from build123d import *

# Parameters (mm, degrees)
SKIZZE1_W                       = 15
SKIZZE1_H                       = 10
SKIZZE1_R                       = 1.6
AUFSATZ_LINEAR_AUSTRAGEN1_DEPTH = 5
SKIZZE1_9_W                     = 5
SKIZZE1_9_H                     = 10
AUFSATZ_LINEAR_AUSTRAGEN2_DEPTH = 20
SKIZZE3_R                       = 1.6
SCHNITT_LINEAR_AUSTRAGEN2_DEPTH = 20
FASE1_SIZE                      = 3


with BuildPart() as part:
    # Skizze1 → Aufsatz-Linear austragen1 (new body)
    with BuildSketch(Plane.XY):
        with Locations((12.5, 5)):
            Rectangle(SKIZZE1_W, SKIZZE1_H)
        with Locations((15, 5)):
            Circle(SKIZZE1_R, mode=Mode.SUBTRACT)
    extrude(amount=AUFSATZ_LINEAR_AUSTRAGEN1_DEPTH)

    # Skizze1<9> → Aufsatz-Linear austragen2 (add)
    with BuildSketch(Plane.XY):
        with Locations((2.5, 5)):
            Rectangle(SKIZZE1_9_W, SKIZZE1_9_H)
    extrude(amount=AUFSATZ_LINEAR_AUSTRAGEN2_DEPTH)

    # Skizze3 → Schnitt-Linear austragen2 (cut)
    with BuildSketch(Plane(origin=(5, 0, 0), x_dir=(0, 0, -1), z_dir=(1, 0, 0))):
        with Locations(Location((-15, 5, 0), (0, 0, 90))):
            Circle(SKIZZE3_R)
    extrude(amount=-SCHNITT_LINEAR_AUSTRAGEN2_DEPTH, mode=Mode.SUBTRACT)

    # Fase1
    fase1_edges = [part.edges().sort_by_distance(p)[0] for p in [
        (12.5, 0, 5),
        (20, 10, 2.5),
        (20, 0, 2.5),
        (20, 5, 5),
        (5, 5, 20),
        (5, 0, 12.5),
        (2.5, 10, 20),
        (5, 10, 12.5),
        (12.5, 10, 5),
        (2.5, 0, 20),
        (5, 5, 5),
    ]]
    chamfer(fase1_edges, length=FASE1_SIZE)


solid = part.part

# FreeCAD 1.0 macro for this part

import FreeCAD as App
import Part
import Sketcher

V = App.Vector
Q = App.Units.Quantity


def edges_at(feature, points):
    """Names of the edges that pass closest to the given points."""
    edges = feature.Shape.Edges
    near = lambda p: min(range(len(edges)), key=lambda i: edges[i].distToShape(Part.Vertex(*p))[0])
    return sorted({f"Edge{near(p) + 1}" for p in points})


def add_polygon(sketch, points):
    """Adds a closed chain of lines whose ends are joined by coincident constraints."""
    first, n = sketch.GeometryCount, len(points)
    for a, b in zip(points, points[1:] + points[:1]):
        sketch.addGeometry(Part.LineSegment(App.Vector(*a, 0), App.Vector(*b, 0)), False)
    for i in range(n):
        sketch.addConstraint(Sketcher.Constraint("Coincident", first + i, 2, first + (i + 1) % n, 1))

doc = App.newDocument("Part")
body = doc.addObject("PartDesign::Body", "Body")

# Sketch on XY plane
sketch1 = body.newObject("Sketcher::SketchObject", "Sketch")
sketch1.AttachmentSupport = (doc.getObject("XY_Plane"), [""])
sketch1.MapMode = "FlatFace"
add_polygon(sketch1, [(5, 10), (5, 0), (20, 0), (20, 10)])  # lines 0-3
sketch1.addGeometry(Part.Circle(V(15, 5, 0), V(0, 0, 1), 1.6), False)  # 4
sketch1.addConstraint([
    Sketcher.Constraint("Vertical", 0),
    Sketcher.Constraint("Horizontal", 1),
    Sketcher.Constraint("Vertical", 2),
    Sketcher.Constraint("Horizontal", 3),
    Sketcher.Constraint("PointOnObject", 0, 2, -1),
    Sketcher.Constraint("Diameter", 4, Q("3.2 mm")),
    Sketcher.Constraint("DistanceX", 1, 1, 1, 2, Q("15 mm")),
    Sketcher.Constraint("DistanceY", 0, 2, 0, 1, Q("10 mm")),
    Sketcher.Constraint("DistanceX", -1, 1, 4, 3, Q("15 mm")),
    Sketcher.Constraint("DistanceY", -1, 1, 4, 3, Q("5 mm")),
    Sketcher.Constraint("DistanceX", -1, 1, 0, 2, Q("5 mm")),
])
pad1 = body.newObject("PartDesign::Pad", "Pad")
pad1.Profile = sketch1
pad1.Length = 5

# Sketch on XY plane
sketch2 = body.newObject("Sketcher::SketchObject", "Sketch001")
sketch2.AttachmentSupport = (doc.getObject("XY_Plane"), [""])
sketch2.MapMode = "FlatFace"
add_polygon(sketch2, [(0, 10), (0, 0), (5, 0), (5, 10)])  # lines 0-3
sketch2.addConstraint([
    Sketcher.Constraint("Vertical", 0),
    Sketcher.Constraint("Horizontal", 1),
    Sketcher.Constraint("Vertical", 2),
    Sketcher.Constraint("Horizontal", 3),
    Sketcher.Constraint("Coincident", 0, 2, -1, 1),
    Sketcher.Constraint("DistanceX", 1, 1, 1, 2, Q("5 mm")),
    Sketcher.Constraint("DistanceY", 0, 2, 0, 1, Q("10 mm")),
])
pad2 = body.newObject("PartDesign::Pad", "Pad001")
pad2.Profile = sketch2
pad2.Length = 20

# Sketch on YZ plane
sketch3 = body.newObject("Sketcher::SketchObject", "Sketch002")
sketch3.AttachmentSupport = (doc.getObject("YZ_Plane"), [""])
sketch3.MapMode = "FlatFace"
sketch3.AttachmentOffset = App.Placement(V(0, 0, 5), App.Rotation())
sketch3.addGeometry(Part.Circle(V(5, 15, 0), V(0, 0, 1), 1.6), False)
sketch3.addConstraint([
    Sketcher.Constraint("Diameter", 0, Q("3.2 mm")),
    Sketcher.Constraint("DistanceX", -1, 1, 0, 3, Q("5 mm")),
    Sketcher.Constraint("DistanceY", -1, 1, 0, 3, Q("15 mm")),
])
pocket1 = body.newObject("PartDesign::Pocket", "Pocket")
pocket1.Profile = sketch3
pocket1.Length = 20
doc.recompute()

chamfer = body.newObject("PartDesign::Chamfer", "Chamfer")
chamfer.Base = (pocket1, edges_at(pocket1, [
    (12.5, 0, 5),
    (20, 10, 2.5),
    (20, 0, 2.5),
    (20, 5, 5),
    (5, 5, 20),
    (5, 0, 12.5),
    (2.5, 10, 20),
    (5, 10, 12.5),
    (12.5, 10, 5),
    (2.5, 0, 20),
    (5, 5, 5),
]))
chamfer.Size = 3

doc.recompute()
